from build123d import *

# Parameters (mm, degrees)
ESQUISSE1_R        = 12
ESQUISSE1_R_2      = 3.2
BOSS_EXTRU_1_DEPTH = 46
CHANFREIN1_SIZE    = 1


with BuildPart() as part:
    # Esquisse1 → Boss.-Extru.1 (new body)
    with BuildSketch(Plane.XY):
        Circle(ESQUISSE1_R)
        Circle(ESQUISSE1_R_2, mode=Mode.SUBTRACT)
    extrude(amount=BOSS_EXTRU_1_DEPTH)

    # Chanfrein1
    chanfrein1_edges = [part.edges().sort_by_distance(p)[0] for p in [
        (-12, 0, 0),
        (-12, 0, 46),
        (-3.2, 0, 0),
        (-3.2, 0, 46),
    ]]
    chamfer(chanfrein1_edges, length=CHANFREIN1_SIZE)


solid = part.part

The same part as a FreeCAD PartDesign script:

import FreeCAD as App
import Part
import Sketcher


def edges_at(feature, points):
    """Names of the edges that pass closest to the given points."""
    edges = feature.Shape.Edges
    near = lambda p: min(range(len(edges)), key=lambda i: edges[i].distToShape(Part.Vertex(*p))[0])
    return sorted({f"Edge{near(p) + 1}" for p in points})

doc = App.newDocument("Part")
body = doc.addObject("PartDesign::Body", "Body")

sketch1 = doc.addObject("Sketcher::SketchObject", "Sketch")
body.addObject(sketch1)
sketch1.AttachmentSupport = (doc.XY_Plane, [""])
sketch1.MapMode = "FlatFace"
sketch1.addGeometry([
    Part.Circle(App.Vector(0, 0, 0), App.Vector(0, 0, 1), 12),
    Part.Circle(App.Vector(0, 0, 0), App.Vector(0, 0, 1), 3.2),
], False)
sketch1.addConstraint([
    Sketcher.Constraint("Coincident", 0, 3, -1, 1),
    Sketcher.Constraint("Coincident", 1, 3, -1, 1),
    Sketcher.Constraint("Diameter", 0, 24.0),
    Sketcher.Constraint("Diameter", 1, 6.4),
])
pad1 = doc.addObject("PartDesign::Pad", "Pad")
body.addObject(pad1)
pad1.Profile = sketch1
pad1.Length = 46
doc.recompute()

chamfer = doc.addObject("PartDesign::Chamfer", "Chamfer")
body.addObject(chamfer)
chamfer.Base = (pad1, edges_at(pad1, [
    (-12, 0, 0),
    (-12, 0, 46),
    (-3.2, 0, 0),
    (-3.2, 0, 46),
]))
chamfer.Size = 1

doc.recompute()
